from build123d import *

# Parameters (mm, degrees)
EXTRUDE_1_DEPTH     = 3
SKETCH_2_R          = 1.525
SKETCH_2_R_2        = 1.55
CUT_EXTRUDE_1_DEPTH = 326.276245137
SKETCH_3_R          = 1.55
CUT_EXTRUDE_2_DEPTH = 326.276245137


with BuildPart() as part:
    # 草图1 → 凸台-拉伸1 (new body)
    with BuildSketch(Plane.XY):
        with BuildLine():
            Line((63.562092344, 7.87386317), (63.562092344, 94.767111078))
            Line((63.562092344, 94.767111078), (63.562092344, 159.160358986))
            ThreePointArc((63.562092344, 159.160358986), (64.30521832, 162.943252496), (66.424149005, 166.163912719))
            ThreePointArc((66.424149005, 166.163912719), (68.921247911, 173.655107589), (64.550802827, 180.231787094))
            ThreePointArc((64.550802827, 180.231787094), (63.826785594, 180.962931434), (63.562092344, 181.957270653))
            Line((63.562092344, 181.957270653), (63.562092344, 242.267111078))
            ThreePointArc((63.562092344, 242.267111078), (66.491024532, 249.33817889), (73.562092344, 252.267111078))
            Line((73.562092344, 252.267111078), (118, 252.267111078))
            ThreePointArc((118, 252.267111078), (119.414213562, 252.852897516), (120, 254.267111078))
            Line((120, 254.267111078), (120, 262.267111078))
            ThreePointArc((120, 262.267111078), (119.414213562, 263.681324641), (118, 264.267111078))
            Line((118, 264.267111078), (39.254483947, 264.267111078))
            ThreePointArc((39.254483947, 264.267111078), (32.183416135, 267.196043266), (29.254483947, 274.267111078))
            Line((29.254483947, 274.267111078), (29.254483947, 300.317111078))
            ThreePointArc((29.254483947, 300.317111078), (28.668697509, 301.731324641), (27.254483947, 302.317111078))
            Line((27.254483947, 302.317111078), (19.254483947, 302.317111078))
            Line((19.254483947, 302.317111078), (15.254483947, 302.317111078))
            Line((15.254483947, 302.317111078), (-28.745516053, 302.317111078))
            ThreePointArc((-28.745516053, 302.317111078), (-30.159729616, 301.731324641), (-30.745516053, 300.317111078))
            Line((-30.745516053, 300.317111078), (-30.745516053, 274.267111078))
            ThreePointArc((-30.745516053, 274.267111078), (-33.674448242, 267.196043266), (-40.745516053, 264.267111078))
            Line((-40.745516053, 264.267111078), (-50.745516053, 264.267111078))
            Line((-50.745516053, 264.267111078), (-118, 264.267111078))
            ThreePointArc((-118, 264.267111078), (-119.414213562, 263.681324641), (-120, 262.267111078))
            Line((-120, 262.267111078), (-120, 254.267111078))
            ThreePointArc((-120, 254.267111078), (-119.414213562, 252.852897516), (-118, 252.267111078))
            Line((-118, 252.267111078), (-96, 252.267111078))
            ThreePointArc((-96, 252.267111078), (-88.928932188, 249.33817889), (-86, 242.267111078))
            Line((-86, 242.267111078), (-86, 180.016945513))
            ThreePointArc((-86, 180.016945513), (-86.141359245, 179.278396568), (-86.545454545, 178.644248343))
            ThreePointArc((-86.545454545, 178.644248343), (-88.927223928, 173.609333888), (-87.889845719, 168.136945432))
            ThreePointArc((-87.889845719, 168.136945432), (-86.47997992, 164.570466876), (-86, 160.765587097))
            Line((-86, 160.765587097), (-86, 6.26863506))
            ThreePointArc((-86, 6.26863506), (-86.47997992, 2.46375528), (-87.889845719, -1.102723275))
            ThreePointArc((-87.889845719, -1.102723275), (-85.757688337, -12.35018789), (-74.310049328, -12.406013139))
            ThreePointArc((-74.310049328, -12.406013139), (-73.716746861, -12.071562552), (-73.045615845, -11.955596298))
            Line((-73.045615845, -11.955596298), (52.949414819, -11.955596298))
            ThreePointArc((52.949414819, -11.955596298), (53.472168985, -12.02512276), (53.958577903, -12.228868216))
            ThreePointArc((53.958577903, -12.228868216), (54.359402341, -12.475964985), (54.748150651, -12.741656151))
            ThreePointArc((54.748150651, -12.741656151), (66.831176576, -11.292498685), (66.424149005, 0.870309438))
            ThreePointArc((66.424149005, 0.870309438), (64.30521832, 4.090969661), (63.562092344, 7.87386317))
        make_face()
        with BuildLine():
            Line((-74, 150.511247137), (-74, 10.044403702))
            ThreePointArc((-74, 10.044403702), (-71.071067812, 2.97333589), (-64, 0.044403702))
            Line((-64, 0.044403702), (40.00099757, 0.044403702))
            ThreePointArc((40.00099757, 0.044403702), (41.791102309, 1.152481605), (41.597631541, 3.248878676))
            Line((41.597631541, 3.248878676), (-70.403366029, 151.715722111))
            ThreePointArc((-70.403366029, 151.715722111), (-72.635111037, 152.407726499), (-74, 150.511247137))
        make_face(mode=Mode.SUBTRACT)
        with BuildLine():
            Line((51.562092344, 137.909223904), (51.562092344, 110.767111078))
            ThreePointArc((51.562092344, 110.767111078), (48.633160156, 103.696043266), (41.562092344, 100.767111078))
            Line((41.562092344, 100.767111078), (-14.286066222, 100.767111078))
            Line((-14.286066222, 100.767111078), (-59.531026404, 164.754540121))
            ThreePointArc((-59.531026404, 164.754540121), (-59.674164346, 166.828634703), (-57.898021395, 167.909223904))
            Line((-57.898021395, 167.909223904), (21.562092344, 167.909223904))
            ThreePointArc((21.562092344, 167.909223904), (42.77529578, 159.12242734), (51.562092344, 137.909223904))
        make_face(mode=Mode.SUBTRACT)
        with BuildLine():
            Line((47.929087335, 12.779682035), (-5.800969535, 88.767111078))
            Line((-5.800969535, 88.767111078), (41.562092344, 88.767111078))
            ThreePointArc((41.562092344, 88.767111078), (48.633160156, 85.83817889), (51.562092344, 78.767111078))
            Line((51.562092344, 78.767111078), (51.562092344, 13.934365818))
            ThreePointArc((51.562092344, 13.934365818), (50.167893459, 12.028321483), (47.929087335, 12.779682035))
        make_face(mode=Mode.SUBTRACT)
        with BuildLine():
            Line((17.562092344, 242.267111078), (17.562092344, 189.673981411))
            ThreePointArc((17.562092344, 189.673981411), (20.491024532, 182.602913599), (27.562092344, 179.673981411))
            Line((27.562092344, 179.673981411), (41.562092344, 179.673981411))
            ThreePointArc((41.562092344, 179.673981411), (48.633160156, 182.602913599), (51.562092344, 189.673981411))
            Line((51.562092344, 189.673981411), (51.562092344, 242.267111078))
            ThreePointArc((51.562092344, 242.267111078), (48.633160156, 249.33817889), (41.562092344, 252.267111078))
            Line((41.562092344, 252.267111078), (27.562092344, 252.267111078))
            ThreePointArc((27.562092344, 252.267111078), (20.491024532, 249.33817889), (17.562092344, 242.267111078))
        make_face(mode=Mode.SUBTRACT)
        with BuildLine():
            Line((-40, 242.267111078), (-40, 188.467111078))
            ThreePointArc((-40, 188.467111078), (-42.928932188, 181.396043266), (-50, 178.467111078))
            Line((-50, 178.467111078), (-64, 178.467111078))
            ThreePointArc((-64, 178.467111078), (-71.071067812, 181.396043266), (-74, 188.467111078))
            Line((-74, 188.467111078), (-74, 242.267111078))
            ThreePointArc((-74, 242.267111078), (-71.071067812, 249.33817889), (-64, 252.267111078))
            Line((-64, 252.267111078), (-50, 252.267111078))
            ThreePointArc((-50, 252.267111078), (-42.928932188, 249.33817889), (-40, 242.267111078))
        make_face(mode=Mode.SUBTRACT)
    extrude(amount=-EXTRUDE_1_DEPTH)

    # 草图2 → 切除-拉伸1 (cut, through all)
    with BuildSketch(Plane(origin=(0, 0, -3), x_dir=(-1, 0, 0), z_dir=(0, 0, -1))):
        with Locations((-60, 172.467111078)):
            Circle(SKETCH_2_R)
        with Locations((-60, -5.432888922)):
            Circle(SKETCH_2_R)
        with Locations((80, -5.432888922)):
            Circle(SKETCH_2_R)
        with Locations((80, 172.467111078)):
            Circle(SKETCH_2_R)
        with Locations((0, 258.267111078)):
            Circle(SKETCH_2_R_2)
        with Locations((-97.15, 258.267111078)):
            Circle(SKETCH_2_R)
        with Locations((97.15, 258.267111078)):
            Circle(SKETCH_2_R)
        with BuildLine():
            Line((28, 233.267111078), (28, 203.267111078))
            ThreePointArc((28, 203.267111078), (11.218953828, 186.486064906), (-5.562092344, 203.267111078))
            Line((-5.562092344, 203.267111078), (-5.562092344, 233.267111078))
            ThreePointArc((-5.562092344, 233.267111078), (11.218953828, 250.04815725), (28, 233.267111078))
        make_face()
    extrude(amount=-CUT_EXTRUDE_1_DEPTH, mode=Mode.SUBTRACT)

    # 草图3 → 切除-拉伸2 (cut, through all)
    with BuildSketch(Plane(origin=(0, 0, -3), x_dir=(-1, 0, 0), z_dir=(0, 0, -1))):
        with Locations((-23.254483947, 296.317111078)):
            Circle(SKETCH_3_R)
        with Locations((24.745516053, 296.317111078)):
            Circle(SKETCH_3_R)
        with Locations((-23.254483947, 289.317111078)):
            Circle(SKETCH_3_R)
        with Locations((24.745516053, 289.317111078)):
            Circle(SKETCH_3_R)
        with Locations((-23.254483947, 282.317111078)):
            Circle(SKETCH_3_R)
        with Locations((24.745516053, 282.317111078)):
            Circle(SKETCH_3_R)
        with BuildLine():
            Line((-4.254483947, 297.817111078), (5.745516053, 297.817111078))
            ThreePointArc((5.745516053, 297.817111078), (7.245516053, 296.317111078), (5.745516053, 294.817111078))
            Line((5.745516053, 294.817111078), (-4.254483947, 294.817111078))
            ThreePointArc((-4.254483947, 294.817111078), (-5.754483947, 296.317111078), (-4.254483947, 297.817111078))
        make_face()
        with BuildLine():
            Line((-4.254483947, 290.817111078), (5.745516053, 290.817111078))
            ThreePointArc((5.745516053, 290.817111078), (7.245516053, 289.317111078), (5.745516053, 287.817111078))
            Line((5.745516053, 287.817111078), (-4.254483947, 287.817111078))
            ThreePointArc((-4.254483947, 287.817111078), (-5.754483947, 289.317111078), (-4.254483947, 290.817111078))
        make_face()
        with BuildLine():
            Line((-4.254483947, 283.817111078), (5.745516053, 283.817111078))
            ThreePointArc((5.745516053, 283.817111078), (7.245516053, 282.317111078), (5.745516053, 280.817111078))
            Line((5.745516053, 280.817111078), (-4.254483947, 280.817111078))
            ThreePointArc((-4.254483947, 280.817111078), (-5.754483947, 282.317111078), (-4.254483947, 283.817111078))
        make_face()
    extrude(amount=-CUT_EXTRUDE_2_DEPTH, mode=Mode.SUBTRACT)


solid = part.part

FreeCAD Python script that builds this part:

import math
import FreeCAD as App
import Part
import Sketcher

V = App.Vector
Q = App.Units.Quantity

doc = App.newDocument("Part")
body = doc.addObject("PartDesign::Body", "Body")

# Sketch on XY plane
sketch1 = doc.addObject("Sketcher::SketchObject", "Sketch")
body.addObject(sketch1)
sketch1.AttachmentSupport = (doc.XY_Plane, [""])
sketch1.MapMode = "FlatFace"
sketch1.addGeometry([
    Part.LineSegment(V(63.562092, 7.873863, 0), V(63.562092, 159.160359, 0)),  # 0
    Part.ArcOfCircle(Part.Circle(V(73.562092, 159.160359, 0), V(0, 0, 1), 10), math.radians(135.544477), math.radians(180)),  # 1
    Part.ArcOfCircle(Part.Circle(V(60, 172.467111, 0), V(0, 0, 1), 9), math.radians(-44.455523), math.radians(59.625838)),  # 2
    Part.ArcOfCircle(Part.Circle(V(65.562092, 181.957271, 0), V(0, 0, 1), 2), math.radians(-180), math.radians(-120.374162)),  # 3
    Part.LineSegment(V(63.562092, 181.957271, 0), V(63.562092, 242.267111, 0)),  # 4
    Part.ArcOfCircle(Part.Circle(V(73.562092, 242.267111, 0), V(0, 0, 1), 10), math.radians(90), math.radians(180)),  # 5
    Part.LineSegment(V(73.562092, 252.267111, 0), V(118, 252.267111, 0)),  # 6
    Part.ArcOfCircle(Part.Circle(V(118, 254.267111, 0), V(0, 0, 1), 2), math.radians(-90), math.radians(0)),  # 7
    Part.LineSegment(V(120, 254.267111, 0), V(120, 262.267111, 0)),  # 8
    Part.ArcOfCircle(Part.Circle(V(118, 262.267111, 0), V(0, 0, 1), 2), math.radians(0), math.radians(90)),  # 9
    Part.LineSegment(V(118, 264.267111, 0), V(39.254484, 264.267111, 0)),  # 10
    Part.ArcOfCircle(Part.Circle(V(39.254484, 274.267111, 0), V(0, 0, 1), 10), math.radians(180), math.radians(270)),  # 11
    Part.LineSegment(V(29.254484, 274.267111, 0), V(29.254484, 300.317111, 0)),  # 12
    Part.ArcOfCircle(Part.Circle(V(27.254484, 300.317111, 0), V(0, 0, 1), 2), math.radians(0), math.radians(90)),  # 13
    Part.LineSegment(V(27.254484, 302.317111, 0), V(-28.745516, 302.317111, 0)),  # 14
    Part.ArcOfCircle(Part.Circle(V(-28.745516, 300.317111, 0), V(0, 0, 1), 2), math.radians(90), math.radians(180)),  # 15
    Part.LineSegment(V(-30.745516, 300.317111, 0), V(-30.745516, 274.267111, 0)),  # 16
    Part.ArcOfCircle(Part.Circle(V(-40.745516, 274.267111, 0), V(0, 0, 1), 10), math.radians(-90), math.radians(0)),  # 17
    Part.LineSegment(V(-40.745516, 264.267111, 0), V(-118, 264.267111, 0)),  # 18
    Part.ArcOfCircle(Part.Circle(V(-118, 262.267111, 0), V(0, 0, 1), 2), math.radians(90), math.radians(180)),  # 19
    Part.LineSegment(V(-120, 262.267111, 0), V(-120, 254.267111, 0)),  # 20
    Part.ArcOfCircle(Part.Circle(V(-118, 254.267111, 0), V(0, 0, 1), 2), math.radians(-180), math.radians(-90)),  # 21
    Part.LineSegment(V(-118, 252.267111, 0), V(-96, 252.267111, 0)),  # 22
    Part.ArcOfCircle(Part.Circle(V(-96, 242.267111, 0), V(0, 0, 1), 10), math.radians(0), math.radians(90)),  # 23
    Part.LineSegment(V(-86, 242.267111, 0), V(-86, 180.016946, 0)),  # 24
    Part.ArcOfCircle(Part.Circle(V(-88, 180.016946, 0), V(0, 0, 1), 2), math.radians(-43.341758), math.radians(0)),  # 25
    Part.ArcOfCircle(Part.Circle(V(-80, 172.467111, 0), V(0, 0, 1), 9), math.radians(136.658242), math.radians(208.759199)),  # 26
    Part.ArcOfCircle(Part.Circle(V(-101.320944, 160.765587, 0), V(0, 0, 1), 15.320944), math.radians(0), math.radians(28.759198)),  # 27
    Part.LineSegment(V(-86, 160.765587, 0), V(-86, 6.268635, 0)),  # 28
    Part.ArcOfCircle(Part.Circle(V(-101.320944, 6.268635, 0), V(0, 0, 1), 15.320944), math.radians(-28.759199), math.radians(0)),  # 29
    Part.ArcOfCircle(Part.Circle(V(-80, -5.432889, 0), V(0, 0, 1), 9), math.radians(151.240801), math.radians(309.21386)),  # 30
    Part.ArcOfCircle(Part.Circle(V(-73.045616, -13.955596, 0), V(0, 0, 1), 2), math.radians(90), math.radians(129.21386)),  # 31
    Part.LineSegment(V(-73.045616, -11.955596, 0), V(52.949415, -11.955596, 0)),  # 32
    Part.ArcOfCircle(Part.Circle(V(52.949415, -13.955596, 0), V(0, 0, 1), 2), math.radians(59.696422), math.radians(90)),  # 33
    Part.ArcOfCircle(Part.Circle(V(48.912762, -20.862509, 0), V(0, 0, 1), 10), math.radians(54.300169), math.radians(59.696422)),  # 34
    Part.ArcOfCircle(Part.Circle(V(60, -5.432889, 0), V(0, 0, 1), 9), math.radians(-125.699831), math.radians(44.455523)),  # 35
    Part.ArcOfCircle(Part.Circle(V(73.562092, 7.873863, 0), V(0, 0, 1), 10), math.radians(180), math.radians(224.455523)),  # 36
    Part.LineSegment(V(-74, 10.044404, 0), V(-74, 150.511247, 0)),  # 37
    Part.ArcOfCircle(Part.Circle(V(-72, 150.511247, 0), V(0, 0, 1), 2), math.radians(37.030314), math.radians(180)),  # 38
    Part.LineSegment(V(-70.403366, 151.715722, 0), V(41.597632, 3.248879, 0)),  # 39
    Part.ArcOfCircle(Part.Circle(V(40.000998, 2.044404, 0), V(0, 0, 1), 2), math.radians(-90), math.radians(37.030315)),  # 40
    Part.LineSegment(V(40.000998, 0.044404, 0), V(-64, 0.044404, 0)),  # 41
    Part.ArcOfCircle(Part.Circle(V(-64, 10.044404, 0), V(0, 0, 1), 10), math.radians(180), math.radians(270)),  # 42
    Part.ArcOfCircle(Part.Circle(V(49.562092, 13.934366, 0), V(0, 0, 1), 2), math.radians(-144.736198), math.radians(0)),  # 43
    Part.LineSegment(V(47.929087, 12.779682, 0), V(-5.80097, 88.767111, 0)),  # 44
    Part.LineSegment(V(-5.80097, 88.767111, 0), V(41.562092, 88.767111, 0)),  # 45
    Part.ArcOfCircle(Part.Circle(V(41.562092, 78.767111, 0), V(0, 0, 1), 10), math.radians(0), math.radians(90)),  # 46
    Part.LineSegment(V(51.562092, 78.767111, 0), V(51.562092, 13.934366, 0)),  # 47
    Part.ArcOfCircle(Part.Circle(V(-50, 242.267111, 0), V(0, 0, 1), 10), math.radians(0), math.radians(90)),  # 48
    Part.LineSegment(V(-40, 242.267111, 0), V(-40, 188.467111, 0)),  # 49
    Part.ArcOfCircle(Part.Circle(V(-50, 188.467111, 0), V(0, 0, 1), 10), math.radians(-90), math.radians(0)),  # 50
    Part.LineSegment(V(-50, 178.467111, 0), V(-64, 178.467111, 0)),  # 51
    Part.ArcOfCircle(Part.Circle(V(-64, 188.467111, 0), V(0, 0, 1), 10), math.radians(180), math.radians(270)),  # 52
    Part.LineSegment(V(-74, 188.467111, 0), V(-74, 242.267111, 0)),  # 53
    Part.ArcOfCircle(Part.Circle(V(-64, 242.267111, 0), V(0, 0, 1), 10), math.radians(90), math.radians(180)),  # 54
    Part.LineSegment(V(-64, 252.267111, 0), V(-50, 252.267111, 0)),  # 55
    Part.ArcOfCircle(Part.Circle(V(21.562092, 137.909224, 0), V(0, 0, 1), 30), math.radians(0), math.radians(90)),  # 56
    Part.LineSegment(V(51.562092, 137.909224, 0), V(51.562092, 110.767111, 0)),  # 57
    Part.ArcOfCircle(Part.Circle(V(41.562092, 110.767111, 0), V(0, 0, 1), 10), math.radians(-90), math.radians(0)),  # 58
    Part.LineSegment(V(41.562092, 100.767111, 0), V(-14.286066, 100.767111, 0)),  # 59
    Part.LineSegment(V(-14.286066, 100.767111, 0), V(-59.531026, 164.75454, 0)),  # 60
    Part.ArcOfCircle(Part.Circle(V(-57.898021, 165.909224, 0), V(0, 0, 1), 2), math.radians(90), math.radians(215.263802)),  # 61
    Part.LineSegment(V(-57.898021, 167.909224, 0), V(21.562092, 167.909224, 0)),  # 62
    Part.LineSegment(V(17.562092, 189.673981, 0), V(17.562092, 242.267111, 0)),  # 63
    Part.ArcOfCircle(Part.Circle(V(27.562092, 242.267111, 0), V(0, 0, 1), 10), math.radians(90), math.radians(180)),  # 64
    Part.LineSegment(V(27.562092, 252.267111, 0), V(41.562092, 252.267111, 0)),  # 65
    Part.ArcOfCircle(Part.Circle(V(41.562092, 242.267111, 0), V(0, 0, 1), 10), math.radians(0), math.radians(90)),  # 66
    Part.LineSegment(V(51.562092, 242.267111, 0), V(51.562092, 189.673981, 0)),  # 67
    Part.ArcOfCircle(Part.Circle(V(41.562092, 189.673981, 0), V(0, 0, 1), 10), math.radians(-90), math.radians(0)),  # 68
    Part.LineSegment(V(41.562092, 179.673981, 0), V(27.562092, 179.673981, 0)),  # 69
    Part.ArcOfCircle(Part.Circle(V(27.562092, 189.673981, 0), V(0, 0, 1), 10), math.radians(180), math.radians(270)),  # 70
], False)
sketch1.addConstraint([
    Sketcher.Constraint("Tangent", 0, 2, 1, 2),
    Sketcher.Constraint("Tangent", 1, 1, 2, 1),
    Sketcher.Constraint("Tangent", 2, 2, 3, 2),
    Sketcher.Constraint("Tangent", 3, 1, 4, 1),
    Sketcher.Constraint("Tangent", 4, 2, 5, 2),
    Sketcher.Constraint("Tangent", 5, 1, 6, 1),
    Sketcher.Constraint("Tangent", 6, 2, 7, 1),
    Sketcher.Constraint("Tangent", 7, 2, 8, 1),
    Sketcher.Constraint("Tangent", 8, 2, 9, 1),
    Sketcher.Constraint("Tangent", 9, 2, 10, 1),
    Sketcher.Constraint("Tangent", 10, 2, 11, 2),
    Sketcher.Constraint("Tangent", 11, 1, 12, 1),
    Sketcher.Constraint("Tangent", 12, 2, 13, 1),
    Sketcher.Constraint("Tangent", 13, 2, 14, 1),
    Sketcher.Constraint("Tangent", 14, 2, 15, 1),
    Sketcher.Constraint("Tangent", 15, 2, 16, 1),
    Sketcher.Constraint("Tangent", 16, 2, 17, 2),
    Sketcher.Constraint("Tangent", 17, 1, 18, 1),
    Sketcher.Constraint("Tangent", 18, 2, 19, 1),
    Sketcher.Constraint("Tangent", 19, 2, 20, 1),
    Sketcher.Constraint("Tangent", 20, 2, 21, 1),
    Sketcher.Constraint("Tangent", 21, 2, 22, 1),
    Sketcher.Constraint("Tangent", 22, 2, 23, 2),
    Sketcher.Constraint("Tangent", 23, 1, 24, 1),
    Sketcher.Constraint("Tangent", 24, 2, 25, 2),
    Sketcher.Constraint("Tangent", 25, 1, 26, 1),
    Sketcher.Constraint("Tangent", 26, 2, 27, 2),
    Sketcher.Constraint("Tangent", 27, 1, 28, 1),
    Sketcher.Constraint("Tangent", 28, 2, 29, 2),
    Sketcher.Constraint("Tangent", 29, 1, 30, 1),
    Sketcher.Constraint("Tangent", 30, 2, 31, 2),
    Sketcher.Constraint("Tangent", 31, 1, 32, 1),
    Sketcher.Constraint("Tangent", 32, 2, 33, 2),
    Sketcher.Constraint("Tangent", 33, 1, 34, 2),
    Sketcher.Constraint("Tangent", 34, 1, 35, 1),
    Sketcher.Constraint("Tangent", 35, 2, 36, 2),
    Sketcher.Constraint("Tangent", 36, 1, 0, 1),
    Sketcher.Constraint("Tangent", 37, 2, 38, 2),
    Sketcher.Constraint("Tangent", 38, 1, 39, 1),
    Sketcher.Constraint("Tangent", 39, 2, 40, 2),
    Sketcher.Constraint("Tangent", 40, 1, 41, 1),
    Sketcher.Constraint("Tangent", 41, 2, 42, 2),
    Sketcher.Constraint("Tangent", 42, 1, 37, 1),
    Sketcher.Constraint("Tangent", 43, 1, 44, 1),
    Sketcher.Constraint("Coincident", 44, 2, 45, 1),
    Sketcher.Constraint("Tangent", 45, 2, 46, 2),
    Sketcher.Constraint("Tangent", 46, 1, 47, 1),
    Sketcher.Constraint("Tangent", 47, 2, 43, 2),
    Sketcher.Constraint("Tangent", 48, 1, 49, 1),
    Sketcher.Constraint("Tangent", 49, 2, 50, 2),
    Sketcher.Constraint("Tangent", 50, 1, 51, 1),
    Sketcher.Constraint("Tangent", 51, 2, 52, 2),
    Sketcher.Constraint("Tangent", 52, 1, 53, 1),
    Sketcher.Constraint("Tangent", 53, 2, 54, 2),
    Sketcher.Constraint("Tangent", 54, 1, 55, 1),
    Sketcher.Constraint("Tangent", 55, 2, 48, 2),
    Sketcher.Constraint("Tangent", 56, 1, 57, 1),
    Sketcher.Constraint("Tangent", 57, 2, 58, 2),
    Sketcher.Constraint("Tangent", 58, 1, 59, 1),
    Sketcher.Constraint("Coincident", 59, 2, 60, 1),
    Sketcher.Constraint("Tangent", 60, 2, 61, 2),
    Sketcher.Constraint("Tangent", 61, 1, 62, 1),
    Sketcher.Constraint("Tangent", 62, 2, 56, 2),
    Sketcher.Constraint("Tangent", 63, 2, 64, 2),
    Sketcher.Constraint("Tangent", 64, 1, 65, 1),
    Sketcher.Constraint("Tangent", 65, 2, 66, 2),
    Sketcher.Constraint("Tangent", 66, 1, 67, 1),
    Sketcher.Constraint("Tangent", 67, 2, 68, 2),
    Sketcher.Constraint("Tangent", 68, 1, 69, 1),
    Sketcher.Constraint("Tangent", 69, 2, 70, 2),
    Sketcher.Constraint("Tangent", 70, 1, 63, 1),
    Sketcher.Constraint("Vertical", 0),
    Sketcher.Constraint("Vertical", 4),
    Sketcher.Constraint("Horizontal", 6),
    Sketcher.Constraint("Vertical", 8),
    Sketcher.Constraint("Horizontal", 10),
    Sketcher.Constraint("Vertical", 12),
    Sketcher.Constraint("Horizontal", 14),
    Sketcher.Constraint("Vertical", 16),
    Sketcher.Constraint("Horizontal", 18),
    Sketcher.Constraint("Vertical", 20),
    Sketcher.Constraint("Horizontal", 22),
    Sketcher.Constraint("Vertical", 24),
    Sketcher.Constraint("Vertical", 28),
    Sketcher.Constraint("Horizontal", 32),
    Sketcher.Constraint("Vertical", 37),
    Sketcher.Constraint("Horizontal", 41),
    Sketcher.Constraint("Horizontal", 45),
    Sketcher.Constraint("Vertical", 47),
    Sketcher.Constraint("Vertical", 49),
    Sketcher.Constraint("Horizontal", 51),
    Sketcher.Constraint("Vertical", 53),
    Sketcher.Constraint("Horizontal", 55),
    Sketcher.Constraint("Vertical", 57),
    Sketcher.Constraint("Horizontal", 59),
    Sketcher.Constraint("Horizontal", 62),
    Sketcher.Constraint("Vertical", 63),
    Sketcher.Constraint("Horizontal", 65),
    Sketcher.Constraint("Vertical", 67),
    Sketcher.Constraint("Horizontal", 69),
    Sketcher.Constraint("Equal", 1, 5),
    Sketcher.Constraint("Equal", 3, 7),
    Sketcher.Constraint("Equal", 7, 9),
    Sketcher.Constraint("Equal", 5, 11),
    Sketcher.Constraint("Equal", 9, 13),
    Sketcher.Constraint("Equal", 13, 15),
    Sketcher.Constraint("Equal", 11, 17),
    Sketcher.Constraint("Equal", 15, 19),
    Sketcher.Constraint("Equal", 19, 21),
    Sketcher.Constraint("Equal", 17, 23),
    Sketcher.Constraint("Equal", 21, 25),
    Sketcher.Constraint("Equal", 2, 26),
    Sketcher.Constraint("Equal", 27, 29),
    Sketcher.Constraint("Equal", 26, 30),
    Sketcher.Constraint("Equal", 25, 31),
    Sketcher.Constraint("Equal", 31, 33),
    Sketcher.Constraint("Equal", 23, 34),
    Sketcher.Constraint("Equal", 30, 35),
    Sketcher.Constraint("Equal", 34, 36),
    Sketcher.Constraint("Equal", 33, 38),
    Sketcher.Constraint("Equal", 38, 40),
    Sketcher.Constraint("Equal", 36, 42),
    Sketcher.Constraint("Equal", 40, 43),
    Sketcher.Constraint("Equal", 42, 46),
    Sketcher.Constraint("Equal", 46, 48),
    Sketcher.Constraint("Equal", 48, 50),
    Sketcher.Constraint("Equal", 50, 52),
    Sketcher.Constraint("Equal", 52, 54),
    Sketcher.Constraint("Equal", 54, 58),
    Sketcher.Constraint("Equal", 43, 61),
    Sketcher.Constraint("Equal", 58, 64),
    Sketcher.Constraint("Equal", 64, 66),
    Sketcher.Constraint("Equal", 66, 68),
    Sketcher.Constraint("Equal", 68, 70),
    Sketcher.Constraint("Symmetric", 9, 3, 19, 3, -2),
    Sketcher.Constraint("Parallel", 44, 60),
    Sketcher.Constraint("Horizontal", 7, 3, 21, 3),
    Sketcher.Constraint("Horizontal", 2, 3, 26, 3),
    Sketcher.Constraint("Horizontal", 30, 3, 35, 3),
    Sketcher.Constraint("Horizontal", 23, 3, 48, 3),
    Sketcher.Constraint("Horizontal", 54, 3, 64, 3),
    Sketcher.Constraint("Vertical", 1, 3, 5, 3),
    Sketcher.Constraint("Vertical", 26, 3, 30, 3),
    Sketcher.Constraint("Vertical", 2, 3, 35, 3),
    Sketcher.Constraint("Vertical", 42, 3, 52, 3),
    Sketcher.Constraint("Vertical", 46, 3, 58, 3),
    Sketcher.Constraint("Vertical", 58, 3, 66, 3),
    Sketcher.Constraint("Vertical", 24, 2, 27, 1),
    Sketcher.Constraint("Equal", 55, 65),
    Sketcher.Constraint("Radius", 1, Q("10 mm")),
    Sketcher.Constraint("Radius", 2, Q("9 mm")),
    Sketcher.Constraint("Radius", 3, Q("2 mm")),
    Sketcher.Constraint("Radius", 56, Q("30 mm")),
    Sketcher.Constraint("DistanceX", 14, 2, 14, 1, Q("56 mm")),
    Sketcher.Constraint("DistanceX", 22, 1, 22, 2, Q("22 mm")),
    Sketcher.Constraint("DistanceX", 51, 2, 51, 1, Q("14 mm")),
    Sketcher.Constraint("DistanceY", 8, 1, 8, 2, Q("8 mm")),
    Sketcher.Constraint("DistanceY", 49, 2, 49, 1, Q("53.8 mm")),
    Sketcher.Constraint("DistanceX", -1, 1, 2, 3, Q("60 mm")),
    Sketcher.Constraint("DistanceX", -1, 1, 7, 3, Q("118 mm")),
    Sketcher.Constraint("DistanceX", 26, 3, -1, 1, Q("80 mm")),
    Sketcher.Constraint("DistanceX", 38, 3, -1, 1, Q("72 mm")),
    Sketcher.Constraint("DistanceY", 12, 1, 12, 2, Q("26.05 mm")),
    Sketcher.Constraint("Radius", 27, Q("15.320944 mm")),
    Sketcher.Constraint("DistanceX", 32, 1, 32, 2, Q("125.995031 mm")),
    Sketcher.Constraint("DistanceX", 45, 1, 45, 2, Q("47.363062 mm")),
    Sketcher.Constraint("DistanceX", 59, 2, 59, 1, Q("55.848159 mm")),
    Sketcher.Constraint("DistanceY", 4, 1, 4, 2, Q("60.30984 mm")),
    Sketcher.Constraint("DistanceY", 63, 1, 63, 2, Q("52.59313 mm")),
    Sketcher.Constraint("Distance", 44, Q("93.064539 mm")),
    Sketcher.Constraint("DistanceX", 6, 1, 6, 2, Q("44.437908 mm")),
    Sketcher.Constraint("DistanceX", 10, 2, 10, 1, Q("78.745516 mm")),
    Sketcher.Constraint("DistanceX", 41, 2, 41, 1, Q("104.000998 mm")),
    Sketcher.Constraint("DistanceX", 62, 1, 62, 2, Q("79.460114 mm")),
    Sketcher.Constraint("DistanceY", 0, 1, 0, 2, Q("151.286496 mm")),
    Sketcher.Constraint("DistanceY", 37, 1, 37, 2, Q("140.466843 mm")),
    Sketcher.Constraint("DistanceY", -1, 1, 1, 3, Q("159.160359 mm")),
    Sketcher.Constraint("DistanceY", 34, 3, -1, 1, Q("20.862509 mm")),
    Sketcher.Constraint("DistanceY", -1, 1, 46, 3, Q("78.767111 mm")),
    Sketcher.Constraint("DistanceY", -1, 1, 58, 3, Q("110.767111 mm")),
    Sketcher.Constraint("DistanceX", 61, 3, -1, 1, Q("57.898021 mm")),
    Sketcher.Constraint("DistanceY", -1, 1, 39, 2, Q("3.248879 mm")),
])
pad1 = doc.addObject("PartDesign::Pad", "Pad")
body.addObject(pad1)
pad1.Profile = sketch1
pad1.Length = 3
pad1.Reversed = True

# Sketch on XY plane
sketch2 = doc.addObject("Sketcher::SketchObject", "Sketch001")
body.addObject(sketch2)
sketch2.AttachmentSupport = (doc.XY_Plane, [""])
sketch2.MapMode = "FlatFace"
sketch2.AttachmentOffset = App.Placement(V(0, 0, -3), App.Rotation())
sketch2.addGeometry([
    Part.Circle(V(60, 172.467111, 0), V(0, 0, 1), 1.525),  # 0
    Part.Circle(V(60, -5.432889, 0), V(0, 0, 1), 1.525),  # 1
    Part.Circle(V(-80, -5.432889, 0), V(0, 0, 1), 1.525),  # 2
    Part.Circle(V(-80, 172.467111, 0), V(0, 0, 1), 1.525),  # 3
    Part.Circle(V(0, 258.267111, 0), V(0, 0, 1), 1.55),  # 4
    Part.Circle(V(97.15, 258.267111, 0), V(0, 0, 1), 1.525),  # 5
    Part.Circle(V(-97.15, 258.267111, 0), V(0, 0, 1), 1.525),  # 6
    Part.LineSegment(V(-28, 203.267111, 0), V(-28, 233.267111, 0)),  # 7
    Part.ArcOfCircle(Part.Circle(V(-11.218954, 233.267111, 0), V(0, 0, 1), 16.781046), math.radians(0), math.radians(180)),  # 8
    Part.LineSegment(V(5.562092, 233.267111, 0), V(5.562092, 203.267111, 0)),  # 9
    Part.ArcOfCircle(Part.Circle(V(-11.218954, 203.267111, 0), V(0, 0, 1), 16.781046), math.radians(180), math.radians(360)),  # 10
], False)
sketch2.addConstraint([
    Sketcher.Constraint("Tangent", 7, 2, 8, 2),
    Sketcher.Constraint("Tangent", 8, 1, 9, 1),
    Sketcher.Constraint("Tangent", 9, 2, 10, 2),
    Sketcher.Constraint("Tangent", 10, 1, 7, 1),
    Sketcher.Constraint("Vertical", 7),
    Sketcher.Constraint("Vertical", 9),
    Sketcher.Constraint("Equal", 0, 1),
    Sketcher.Constraint("Equal", 1, 2),
    Sketcher.Constraint("Equal", 2, 3),
    Sketcher.Constraint("Equal", 3, 5),
    Sketcher.Constraint("Equal", 5, 6),
    Sketcher.Constraint("Symmetric", 5, 3, 6, 3, -2),
    Sketcher.Constraint("PointOnObject", 4, 3, -2),
    Sketcher.Constraint("Horizontal", 1, 3, 2, 3),
    Sketcher.Constraint("Horizontal", 0, 3, 3, 3),
    Sketcher.Constraint("Horizontal", 4, 3, 5, 3),
    Sketcher.Constraint("Vertical", 0, 3, 1, 3),
    Sketcher.Constraint("Vertical", 2, 3, 3, 3),
    Sketcher.Constraint("Diameter", 4, Q("3.1 mm")),
    Sketcher.Constraint("Diameter", 0, Q("3.05 mm")),
    Sketcher.Constraint("DistanceY", 7, 1, 7, 2, Q("30 mm")),
    Sketcher.Constraint("DistanceX", -1, 1, 0, 3, Q("60 mm")),
    Sketcher.Constraint("DistanceX", 2, 3, -1, 1, Q("80 mm")),
    Sketcher.Constraint("DistanceX", 7, 2, -1, 1, Q("28 mm")),
    Sketcher.Constraint("DistanceY", 8, 3, 4, 3, Q("25 mm")),
    Sketcher.Constraint("DistanceY", 1, 3, 0, 3, Q("177.9 mm")),
    Sketcher.Constraint("DistanceY", 0, 3, 4, 3, Q("85.8 mm")),
    Sketcher.Constraint("DistanceX", 6, 3, 5, 3, Q("194.3 mm")),
    Sketcher.Constraint("Radius", 8, Q("16.781046 mm")),
    Sketcher.Constraint("DistanceY", -1, 1, 0, 3, Q("172.467111 mm")),
])
pocket1 = doc.addObject("PartDesign::Pocket", "Pocket")
body.addObject(pocket1)
pocket1.Profile = sketch2
pocket1.Type = "ThroughAll"
pocket1.Reversed = True

# Sketch on XY plane
sketch3 = doc.addObject("Sketcher::SketchObject", "Sketch002")
body.addObject(sketch3)
sketch3.AttachmentSupport = (doc.XY_Plane, [""])
sketch3.MapMode = "FlatFace"
sketch3.AttachmentOffset = App.Placement(V(0, 0, -3), App.Rotation())
sketch3.addGeometry([
    Part.Circle(V(23.254484, 296.317111, 0), V(0, 0, 1), 1.55),  # 0
    Part.Circle(V(-24.745516, 296.317111, 0), V(0, 0, 1), 1.55),  # 1
    Part.Circle(V(23.254484, 289.317111, 0), V(0, 0, 1), 1.55),  # 2
    Part.Circle(V(-24.745516, 289.317111, 0), V(0, 0, 1), 1.55),  # 3
    Part.Circle(V(23.254484, 282.317111, 0), V(0, 0, 1), 1.55),  # 4
    Part.Circle(V(-24.745516, 282.317111, 0), V(0, 0, 1), 1.55),  # 5
    Part.LineSegment(V(-5.745516, 297.817111, 0), V(4.254484, 297.817111, 0)),  # 6
    Part.ArcOfCircle(Part.Circle(V(4.254484, 296.317111, 0), V(0, 0, 1), 1.5), math.radians(-90), math.radians(90)),  # 7
    Part.LineSegment(V(4.254484, 294.817111, 0), V(-5.745516, 294.817111, 0)),  # 8
    Part.ArcOfCircle(Part.Circle(V(-5.745516, 296.317111, 0), V(0, 0, 1), 1.5), math.radians(90), math.radians(270)),  # 9
    Part.LineSegment(V(-5.745516, 290.817111, 0), V(4.254484, 290.817111, 0)),  # 10
    Part.ArcOfCircle(Part.Circle(V(4.254484, 289.317111, 0), V(0, 0, 1), 1.5), math.radians(-90), math.radians(90)),  # 11
    Part.LineSegment(V(4.254484, 287.817111, 0), V(-5.745516, 287.817111, 0)),  # 12
    Part.ArcOfCircle(Part.Circle(V(-5.745516, 289.317111, 0), V(0, 0, 1), 1.5), math.radians(90), math.radians(270)),  # 13
    Part.LineSegment(V(-5.745516, 283.817111, 0), V(4.254484, 283.817111, 0)),  # 14
    Part.ArcOfCircle(Part.Circle(V(4.254484, 282.317111, 0), V(0, 0, 1), 1.5), math.radians(-90), math.radians(90)),  # 15
    Part.LineSegment(V(4.254484, 280.817111, 0), V(-5.745516, 280.817111, 0)),  # 16
    Part.ArcOfCircle(Part.Circle(V(-5.745516, 282.317111, 0), V(0, 0, 1), 1.5), math.radians(90), math.radians(270)),  # 17
], False)
sketch3.addConstraint([
    Sketcher.Constraint("Tangent", 6, 2, 7, 2),
    Sketcher.Constraint("Tangent", 7, 1, 8, 1),
    Sketcher.Constraint("Tangent", 8, 2, 9, 2),
    Sketcher.Constraint("Tangent", 9, 1, 6, 1),
    Sketcher.Constraint("Tangent", 10, 2, 11, 2),
    Sketcher.Constraint("Tangent", 11, 1, 12, 1),
    Sketcher.Constraint("Tangent", 12, 2, 13, 2),
    Sketcher.Constraint("Tangent", 13, 1, 10, 1),
    Sketcher.Constraint("Tangent", 14, 2, 15, 2),
    Sketcher.Constraint("Tangent", 15, 1, 16, 1),
    Sketcher.Constraint("Tangent", 16, 2, 17, 2),
    Sketcher.Constraint("Tangent", 17, 1, 14, 1),
    Sketcher.Constraint("Horizontal", 6),
    Sketcher.Constraint("Horizontal", 8),
    Sketcher.Constraint("Horizontal", 10),
    Sketcher.Constraint("Horizontal", 12),
    Sketcher.Constraint("Horizontal", 14),
    Sketcher.Constraint("Horizontal", 16),
    Sketcher.Constraint("Equal", 0, 1),
    Sketcher.Constraint("Equal", 1, 2),
    Sketcher.Constraint("Equal", 2, 3),
    Sketcher.Constraint("Equal", 3, 4),
    Sketcher.Constraint("Equal", 4, 5),
    Sketcher.Constraint("Equal", 9, 11),
    Sketcher.Constraint("Equal", 13, 15),
    Sketcher.Constraint("Horizontal", 0, 3, 1, 3),
    Sketcher.Constraint("Horizontal", 2, 3, 3, 3),
    Sketcher.Constraint("Horizontal", 4, 3, 5, 3),
    Sketcher.Constraint("Horizontal", 1, 3, 7, 3),
    Sketcher.Constraint("Horizontal", 3, 3, 11, 3),
    Sketcher.Constraint("Horizontal", 5, 3, 15, 3),
    Sketcher.Constraint("Vertical", 0, 3, 2, 3),
    Sketcher.Constraint("Vertical", 1, 3, 3, 3),
    Sketcher.Constraint("Vertical", 2, 3, 4, 3),
    Sketcher.Constraint("Vertical", 3, 3, 5, 3),
    Sketcher.Constraint("Vertical", 7, 3, 11, 3),
    Sketcher.Constraint("Vertical", 9, 3, 13, 3),
    Sketcher.Constraint("Vertical", 11, 3, 15, 3),
    Sketcher.Constraint("Vertical", 13, 3, 17, 3),
    Sketcher.Constraint("Diameter", 0, Q("3.1 mm")),
    Sketcher.Constraint("Radius", 7, Q("1.5 mm")),
    Sketcher.Constraint("DistanceX", 6, 1, 6, 2, Q("10 mm")),
    Sketcher.Constraint("DistanceX", 1, 3, 0, 3, Q("48 mm")),
    Sketcher.Constraint("DistanceY", 2, 3, 0, 3, Q("7 mm")),
    Sketcher.Constraint("DistanceY", 4, 3, 2, 3, Q("7 mm")),
    Sketcher.Constraint("DistanceX", 7, 3, 0, 3, Q("19 mm")),
    Sketcher.Constraint("DistanceY", -1, 1, 0, 3, Q("296.317111 mm")),
    Sketcher.Constraint("DistanceX", -1, 1, 0, 3, Q("23.254484 mm")),
])
pocket2 = doc.addObject("PartDesign::Pocket", "Pocket001")
body.addObject(pocket2)
pocket2.Profile = sketch3
pocket2.Type = "ThroughAll"
pocket2.Reversed = True

doc.recompute()
